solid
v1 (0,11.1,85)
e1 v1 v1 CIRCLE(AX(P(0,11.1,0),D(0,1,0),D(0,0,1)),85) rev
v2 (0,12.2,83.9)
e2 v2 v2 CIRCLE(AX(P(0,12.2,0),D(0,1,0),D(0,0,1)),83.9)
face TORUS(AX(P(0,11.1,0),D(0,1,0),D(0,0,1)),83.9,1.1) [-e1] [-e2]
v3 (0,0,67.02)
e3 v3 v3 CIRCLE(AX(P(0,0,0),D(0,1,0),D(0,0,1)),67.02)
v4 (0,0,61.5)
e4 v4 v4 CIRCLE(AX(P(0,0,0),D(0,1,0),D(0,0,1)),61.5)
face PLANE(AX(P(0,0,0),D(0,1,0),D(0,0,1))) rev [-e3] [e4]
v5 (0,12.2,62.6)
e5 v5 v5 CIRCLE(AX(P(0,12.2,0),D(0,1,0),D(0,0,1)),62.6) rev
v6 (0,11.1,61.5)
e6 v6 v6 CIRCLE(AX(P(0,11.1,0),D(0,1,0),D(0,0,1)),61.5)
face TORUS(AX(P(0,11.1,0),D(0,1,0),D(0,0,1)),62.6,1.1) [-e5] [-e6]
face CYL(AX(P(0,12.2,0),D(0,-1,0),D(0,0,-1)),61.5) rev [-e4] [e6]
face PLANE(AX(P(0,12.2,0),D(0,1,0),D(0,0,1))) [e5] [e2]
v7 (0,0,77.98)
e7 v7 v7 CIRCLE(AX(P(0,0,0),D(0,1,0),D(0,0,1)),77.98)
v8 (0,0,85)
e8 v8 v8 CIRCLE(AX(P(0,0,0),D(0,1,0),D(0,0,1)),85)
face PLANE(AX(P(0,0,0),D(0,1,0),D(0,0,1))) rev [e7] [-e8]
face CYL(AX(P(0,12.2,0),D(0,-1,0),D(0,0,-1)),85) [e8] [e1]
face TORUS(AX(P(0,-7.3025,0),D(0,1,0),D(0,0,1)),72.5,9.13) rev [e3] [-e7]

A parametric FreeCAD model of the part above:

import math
import FreeCAD as App
import Part
import Sketcher

V = App.Vector


def edges_at(feature, points):
    """Names of the edges that pass closest to the given points."""
    edges = feature.Shape.Edges
    near = lambda p: min(range(len(edges)), key=lambda i: edges[i].distToShape(Part.Vertex(*p))[0])
    return sorted({f"Edge{near(p) + 1}" for p in points})

doc = App.newDocument("Part")
params = doc.addObject("Spreadsheet::Sheet", "Params")
for row, (alias, value) in enumerate([
    ("sketch1_diameter", "170 mm"),
    ("sketch1_diameter2", "123 mm"),
    ("pad1_length", "12.2 mm"),
    ("fillet_radius", "1.1 mm"),
    ("sketch2_radius", "9.13 mm"),
    ("sketch2_width", "10.96 mm"),
    ("groove_angle", "360 deg"),
], start=1):
    params.set(f"A{row}", alias)
    params.set(f"B{row}", "=" + value)
    params.setAlias(f"B{row}", alias)

body = doc.addObject("PartDesign::Body", "Body")

sketch1 = body.newObject("Sketcher::SketchObject", "Sketch")
sketch1.AttachmentSupport = (doc.getObject("XZ_Plane"), [""])
sketch1.MapMode = "FlatFace"
sketch1.addGeometry([
    Part.Circle(V(0, 0, 0), V(0, 0, 1), 85),
    Part.Circle(V(0, 0, 0), V(0, 0, 1), 61.5),
], False)
sketch1.addConstraint([
    Sketcher.Constraint("Coincident", 0, 3, -1, 1),
    Sketcher.Constraint("Coincident", 1, 3, -1, 1),
    Sketcher.Constraint("Diameter", 0, 170.0),
    Sketcher.Constraint("Diameter", 1, 123.0),
])
sketch1.setExpression("Constraints[2]", "Params.sketch1_diameter")
sketch1.setExpression("Constraints[3]", "Params.sketch1_diameter2")
pad1 = body.newObject("PartDesign::Pad", "Pad")
pad1.Profile = sketch1
pad1.setExpression("Length", "Params.pad1_length")
pad1.Reversed = True
doc.recompute()

fillet = body.newObject("PartDesign::Fillet", "Fillet")
fillet.Base = (pad1, edges_at(pad1, [(-85, 12.2, 0), (-61.5, 12.2, 0)]))
fillet.setExpression("Radius", "Params.fillet_radius")

sketch2 = body.newObject("Sketcher::SketchObject", "Sketch001")
sketch2.AttachmentSupport = (doc.getObject("XY_Plane"), [""])
sketch2.MapMode = "FlatFace"
sketch2.addGeometry([
    Part.LineSegment(V(-77.98, 0, 0), V(-67.02, 0, 0)),
    Part.ArcOfCircle(Part.Circle(V(-72.5, -7.3025, 0), V(0, 0, 1), 9.13), math.radians(53.114412), math.radians(126.885588)),
], False)
sketch2.addConstraint([
    Sketcher.Constraint("Coincident", 0, 1, 1, 2),
    Sketcher.Constraint("Coincident", 1, 1, 0, 2),
    Sketcher.Constraint("Horizontal", 0),
    Sketcher.Constraint("PointOnObject", 0, 1, -1),
    Sketcher.Constraint("Radius", 1, 9.13),
    Sketcher.Constraint("DistanceX", 0, 1, 0, 2, 10.96),
    Sketcher.Constraint("DistanceX", 1, 3, -1, 1, 72.5),
])
sketch2.setExpression("Constraints[4]", "Params.sketch2_radius")
sketch2.setExpression("Constraints[5]", "Params.sketch2_width")
groove = body.newObject("PartDesign::Groove", "Groove")
groove.Profile = sketch2
groove.ReferenceAxis = (sketch2, ["V_Axis"])
groove.setExpression("Angle", "Params.groove_angle")

doc.recompute()
